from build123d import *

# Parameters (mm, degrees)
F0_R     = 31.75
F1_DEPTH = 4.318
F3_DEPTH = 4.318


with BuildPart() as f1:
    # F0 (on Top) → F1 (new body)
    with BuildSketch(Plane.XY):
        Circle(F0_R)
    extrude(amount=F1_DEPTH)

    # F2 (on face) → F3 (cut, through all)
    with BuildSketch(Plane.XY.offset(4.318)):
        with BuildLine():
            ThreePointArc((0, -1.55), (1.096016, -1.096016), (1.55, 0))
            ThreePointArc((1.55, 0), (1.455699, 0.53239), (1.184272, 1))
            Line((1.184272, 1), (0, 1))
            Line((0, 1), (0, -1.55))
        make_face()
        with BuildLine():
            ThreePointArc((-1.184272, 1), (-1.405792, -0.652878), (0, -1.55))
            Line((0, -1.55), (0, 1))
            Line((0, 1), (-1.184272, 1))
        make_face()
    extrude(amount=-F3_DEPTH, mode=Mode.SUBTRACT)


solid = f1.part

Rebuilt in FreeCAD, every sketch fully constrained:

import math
import FreeCAD as App
import Part
import Sketcher
Q = App.Units.Quantity

doc = App.newDocument("Part")
body = doc.addObject("PartDesign::Body", "Body")

# Sketch on XY plane
sketch1 = doc.addObject("Sketcher::SketchObject", "Sketch")
body.addObject(sketch1)
sketch1.AttachmentSupport = (doc.XY_Plane, [""])
sketch1.MapMode = "FlatFace"
sketch1.addGeometry(Part.Circle(App.Vector(0, 0, 0), App.Vector(0, 0, 1), 32), False)
sketch1.addConstraint(Sketcher.Constraint("Coincident", 0, 3, -1, 1))
sketch1.addConstraint(Sketcher.Constraint("Diameter", 0, Q("2.5 in")))
pad1 = doc.addObject("PartDesign::Pad", "Pad")
body.addObject(pad1)
pad1.Profile = sketch1
pad1.Length = Q("0.17 in")

# Sketch on XY plane
sketch2 = doc.addObject("Sketcher::SketchObject", "Sketch001")
body.addObject(sketch2)
sketch2.AttachmentSupport = (doc.XY_Plane, [""])
sketch2.MapMode = "FlatFace"
sketch2.AttachmentOffset = App.Placement(App.Vector(0, 0, 0.17 * 25.4), App.Rotation())
sketch2.addGeometry(Part.ArcOfCircle(Part.Circle(App.Vector(0, 0, 0), App.Vector(0, 0, 1), 1.5), math.radians(-90), math.radians(0)), False)
sketch2.addGeometry(Part.ArcOfCircle(Part.Circle(App.Vector(0, 0, 0), App.Vector(0, 0, 1), 1.6), math.radians(0), math.radians(40)), False)
sketch2.addGeometry(Part.LineSegment(App.Vector(1.2, 1, 0), App.Vector(-1.2, 1, 0)), False)
sketch2.addGeometry(Part.ArcOfCircle(Part.Circle(App.Vector(0, 0, 0), App.Vector(0, 0, 1), 1.5), math.radians(140), math.radians(270)), False)
sketch2.addConstraint(Sketcher.Constraint("Tangent", 0, 2, 1, 1))
sketch2.addConstraint(Sketcher.Constraint("Coincident", 1, 2, 2, 1))
sketch2.addConstraint(Sketcher.Constraint("Coincident", 2, 2, 3, 1))
sketch2.addConstraint(Sketcher.Constraint("Tangent", 3, 2, 0, 1))
sketch2.addConstraint(Sketcher.Constraint("Horizontal", 2))
sketch2.addConstraint(Sketcher.Constraint("Coincident", 0, 3, -1, 1))
sketch2.addConstraint(Sketcher.Constraint("Equal", 0, 3))
sketch2.addConstraint(Sketcher.Constraint("PointOnObject", 0, 2, -1))
sketch2.addConstraint(Sketcher.Constraint("PointOnObject", 3, 2, -2))
sketch2.addConstraint(Sketcher.Constraint("Radius", 0, Q("1.549998 mm")))
sketch2.addConstraint(Sketcher.Constraint("Radius", 1, Q("1.550007 mm")))
sketch2.addConstraint(Sketcher.Constraint("DistanceY", -1, 1, 1, 2, Q("1 mm")))
pocket1 = doc.addObject("PartDesign::Pocket", "Pocket")
body.addObject(pocket1)
pocket1.Profile = sketch2
pocket1.Type = "ThroughAll"

doc.recompute()
